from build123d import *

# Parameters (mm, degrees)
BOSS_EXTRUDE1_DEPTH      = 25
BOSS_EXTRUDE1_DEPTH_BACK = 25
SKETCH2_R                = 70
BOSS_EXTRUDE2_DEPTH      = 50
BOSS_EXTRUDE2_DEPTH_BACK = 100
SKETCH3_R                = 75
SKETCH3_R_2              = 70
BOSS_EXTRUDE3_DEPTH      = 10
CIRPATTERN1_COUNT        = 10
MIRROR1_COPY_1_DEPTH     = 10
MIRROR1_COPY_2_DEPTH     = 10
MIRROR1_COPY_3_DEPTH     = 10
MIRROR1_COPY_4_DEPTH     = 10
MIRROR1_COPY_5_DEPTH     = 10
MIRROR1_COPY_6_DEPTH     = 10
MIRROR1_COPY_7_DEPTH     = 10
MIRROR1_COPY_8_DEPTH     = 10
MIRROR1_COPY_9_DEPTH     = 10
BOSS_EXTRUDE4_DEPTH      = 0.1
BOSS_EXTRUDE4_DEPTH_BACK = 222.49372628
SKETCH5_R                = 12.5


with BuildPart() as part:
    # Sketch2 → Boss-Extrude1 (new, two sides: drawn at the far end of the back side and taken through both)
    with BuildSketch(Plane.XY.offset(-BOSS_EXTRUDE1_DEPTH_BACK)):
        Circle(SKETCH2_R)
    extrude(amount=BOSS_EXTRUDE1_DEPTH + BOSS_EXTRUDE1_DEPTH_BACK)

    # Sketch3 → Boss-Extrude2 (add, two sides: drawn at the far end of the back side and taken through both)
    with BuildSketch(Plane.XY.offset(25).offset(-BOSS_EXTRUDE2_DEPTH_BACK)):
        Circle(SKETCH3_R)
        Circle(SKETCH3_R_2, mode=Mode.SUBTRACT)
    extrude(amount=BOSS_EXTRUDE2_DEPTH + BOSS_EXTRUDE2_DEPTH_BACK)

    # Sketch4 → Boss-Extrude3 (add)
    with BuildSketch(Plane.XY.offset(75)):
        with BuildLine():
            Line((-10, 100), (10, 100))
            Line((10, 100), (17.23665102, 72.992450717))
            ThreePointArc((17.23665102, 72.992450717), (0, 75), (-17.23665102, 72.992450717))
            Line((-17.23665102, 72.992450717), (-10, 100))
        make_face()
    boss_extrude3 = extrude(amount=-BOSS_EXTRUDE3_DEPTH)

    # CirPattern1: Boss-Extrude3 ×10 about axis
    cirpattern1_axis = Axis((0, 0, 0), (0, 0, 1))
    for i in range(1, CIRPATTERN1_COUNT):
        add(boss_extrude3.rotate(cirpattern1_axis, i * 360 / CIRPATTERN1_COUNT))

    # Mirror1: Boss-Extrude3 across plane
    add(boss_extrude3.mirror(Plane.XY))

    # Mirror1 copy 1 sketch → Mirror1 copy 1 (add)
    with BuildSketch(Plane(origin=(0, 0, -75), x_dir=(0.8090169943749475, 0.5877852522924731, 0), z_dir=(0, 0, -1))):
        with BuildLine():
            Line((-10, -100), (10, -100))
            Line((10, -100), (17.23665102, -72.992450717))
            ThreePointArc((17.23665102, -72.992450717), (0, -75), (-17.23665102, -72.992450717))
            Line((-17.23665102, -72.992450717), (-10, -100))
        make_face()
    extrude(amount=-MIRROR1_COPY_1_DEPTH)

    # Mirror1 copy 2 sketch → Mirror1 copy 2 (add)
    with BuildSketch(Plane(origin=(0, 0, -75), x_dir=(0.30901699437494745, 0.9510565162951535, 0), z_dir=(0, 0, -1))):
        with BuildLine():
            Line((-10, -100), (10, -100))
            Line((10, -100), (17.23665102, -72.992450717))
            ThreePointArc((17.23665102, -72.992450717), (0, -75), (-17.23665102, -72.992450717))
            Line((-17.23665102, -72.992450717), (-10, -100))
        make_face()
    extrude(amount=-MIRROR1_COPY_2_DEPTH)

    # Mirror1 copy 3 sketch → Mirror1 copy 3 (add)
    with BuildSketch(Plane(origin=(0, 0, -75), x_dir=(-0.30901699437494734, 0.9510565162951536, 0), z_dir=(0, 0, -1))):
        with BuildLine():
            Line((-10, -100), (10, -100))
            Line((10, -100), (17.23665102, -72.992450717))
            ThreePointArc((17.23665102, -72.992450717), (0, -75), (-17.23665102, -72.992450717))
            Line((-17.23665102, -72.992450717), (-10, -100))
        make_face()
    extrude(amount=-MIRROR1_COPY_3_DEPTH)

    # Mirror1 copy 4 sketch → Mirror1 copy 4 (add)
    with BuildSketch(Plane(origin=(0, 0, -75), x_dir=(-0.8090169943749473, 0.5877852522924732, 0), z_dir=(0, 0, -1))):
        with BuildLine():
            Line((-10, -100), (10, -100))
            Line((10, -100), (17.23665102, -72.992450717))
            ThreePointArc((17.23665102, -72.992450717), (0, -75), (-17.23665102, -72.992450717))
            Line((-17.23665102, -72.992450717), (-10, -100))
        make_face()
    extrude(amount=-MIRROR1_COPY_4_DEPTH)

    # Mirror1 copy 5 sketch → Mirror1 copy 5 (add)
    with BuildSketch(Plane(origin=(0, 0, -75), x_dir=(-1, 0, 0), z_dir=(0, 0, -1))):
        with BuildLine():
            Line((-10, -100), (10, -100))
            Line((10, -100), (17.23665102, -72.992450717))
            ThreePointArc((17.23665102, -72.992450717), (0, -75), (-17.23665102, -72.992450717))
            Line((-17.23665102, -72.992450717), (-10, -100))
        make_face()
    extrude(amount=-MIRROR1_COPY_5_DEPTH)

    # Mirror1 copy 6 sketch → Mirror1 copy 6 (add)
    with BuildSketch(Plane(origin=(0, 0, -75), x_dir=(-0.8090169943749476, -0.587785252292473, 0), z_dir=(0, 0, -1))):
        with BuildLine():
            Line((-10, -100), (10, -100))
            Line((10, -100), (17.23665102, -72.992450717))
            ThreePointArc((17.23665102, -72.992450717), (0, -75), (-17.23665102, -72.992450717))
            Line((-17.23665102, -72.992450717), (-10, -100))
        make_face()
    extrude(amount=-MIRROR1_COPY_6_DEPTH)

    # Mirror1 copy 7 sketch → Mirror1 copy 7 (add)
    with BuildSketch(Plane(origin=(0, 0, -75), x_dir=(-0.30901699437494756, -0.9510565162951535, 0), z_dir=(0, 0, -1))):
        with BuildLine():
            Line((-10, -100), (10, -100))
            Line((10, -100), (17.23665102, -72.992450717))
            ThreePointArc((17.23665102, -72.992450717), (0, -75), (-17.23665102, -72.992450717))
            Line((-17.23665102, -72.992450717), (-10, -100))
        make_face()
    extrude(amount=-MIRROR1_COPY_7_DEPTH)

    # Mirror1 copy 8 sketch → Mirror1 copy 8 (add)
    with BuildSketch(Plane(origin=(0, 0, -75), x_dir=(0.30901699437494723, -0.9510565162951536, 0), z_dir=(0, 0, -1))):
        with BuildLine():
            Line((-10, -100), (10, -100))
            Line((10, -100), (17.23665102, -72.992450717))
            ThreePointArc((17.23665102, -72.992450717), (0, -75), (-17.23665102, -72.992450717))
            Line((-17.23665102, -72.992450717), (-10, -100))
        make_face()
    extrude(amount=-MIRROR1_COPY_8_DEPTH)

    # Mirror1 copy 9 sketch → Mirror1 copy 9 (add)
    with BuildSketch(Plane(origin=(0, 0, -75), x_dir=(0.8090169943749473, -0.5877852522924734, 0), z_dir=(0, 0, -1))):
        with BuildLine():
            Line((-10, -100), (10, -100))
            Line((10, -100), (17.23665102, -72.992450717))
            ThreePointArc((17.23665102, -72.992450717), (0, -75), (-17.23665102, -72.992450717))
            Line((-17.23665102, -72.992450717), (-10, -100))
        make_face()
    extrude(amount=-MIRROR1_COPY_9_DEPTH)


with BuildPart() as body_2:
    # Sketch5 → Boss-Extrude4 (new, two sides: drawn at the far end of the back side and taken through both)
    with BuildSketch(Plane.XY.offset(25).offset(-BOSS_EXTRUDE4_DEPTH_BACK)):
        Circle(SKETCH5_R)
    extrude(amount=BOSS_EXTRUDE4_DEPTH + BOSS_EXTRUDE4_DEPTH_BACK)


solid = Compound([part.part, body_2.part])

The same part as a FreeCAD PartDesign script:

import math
import FreeCAD as App
import Part
import Sketcher
from FreeCAD import Vector
Q = App.Units.Quantity

doc = App.newDocument("Part")
body = doc.addObject("PartDesign::Body", "Body")

# Sketch on XY plane
sketch1 = doc.addObject("Sketcher::SketchObject", "Sketch")
body.addObject(sketch1)
sketch1.AttachmentSupport = (doc.XY_Plane, [""])
sketch1.MapMode = "FlatFace"
sketch1.addGeometry(Part.Circle(Vector(0, 0, 0), Vector(0, 0, 1), 70), False)
sketch1.addConstraint([
    Sketcher.Constraint("Coincident", 0, 3, -1, 1),
    Sketcher.Constraint("Diameter", 0, 140.0),
])
pad1 = doc.addObject("PartDesign::Pad", "Pad")
body.addObject(pad1)
pad1.Profile = sketch1
pad1.Type = "TwoLengths"
pad1.Length = 25
pad1.Length2 = 25

# Sketch on XY plane
sketch2 = doc.addObject("Sketcher::SketchObject", "Sketch001")
body.addObject(sketch2)
sketch2.AttachmentSupport = (doc.XY_Plane, [""])
sketch2.MapMode = "FlatFace"
sketch2.AttachmentOffset = App.Placement(Vector(0, 0, 25), App.Rotation())
sketch2.addGeometry([
    Part.Circle(Vector(0, 0, 0), Vector(0, 0, 1), 75),
    Part.Circle(Vector(0, 0, 0), Vector(0, 0, 1), 70),
], False)
sketch2.addConstraint([
    Sketcher.Constraint("Coincident", 0, 3, -1, 1),
    Sketcher.Constraint("Coincident", 1, 3, -1, 1),
    Sketcher.Constraint("Diameter", 0, 150.0),
    Sketcher.Constraint("Diameter", 1, 140.0),
])
pad2 = doc.addObject("PartDesign::Pad", "Pad001")
body.addObject(pad2)
pad2.Profile = sketch2
pad2.Type = "TwoLengths"
pad2.Length = 50
pad2.Length2 = 100

# Sketch on XY plane
sketch3 = doc.addObject("Sketcher::SketchObject", "Sketch002")
body.addObject(sketch3)
sketch3.AttachmentSupport = (doc.XY_Plane, [""])
sketch3.MapMode = "FlatFace"
sketch3.AttachmentOffset = App.Placement(Vector(0, 0, 75), App.Rotation())
sketch3.addGeometry([
    Part.LineSegment(Vector(10, 100, 0), Vector(-10, 100, 0)),
    Part.LineSegment(Vector(-10, 100, 0), Vector(-17, 73, 0)),
    Part.ArcOfCircle(Part.Circle(Vector(0, 0, 0), Vector(0, 0, 1), 75), math.radians(77), math.radians(103)),
    Part.LineSegment(Vector(17, 73, 0), Vector(10, 100, 0)),
], False)
sketch3.addConstraint([
    Sketcher.Constraint("Coincident", 0, 2, 1, 1),
    Sketcher.Constraint("Coincident", 1, 2, 2, 2),
    Sketcher.Constraint("Coincident", 2, 1, 3, 1),
    Sketcher.Constraint("Coincident", 3, 2, 0, 1),
    Sketcher.Constraint("Horizontal", 0),
    Sketcher.Constraint("Coincident", 2, 3, -1, 1),
    Sketcher.Constraint("Horizontal", 1, 2, 2, 1),
    Sketcher.Constraint("Equal", 1, 3),
    Sketcher.Constraint("Radius", 2, 75.0),
    Sketcher.Constraint("DistanceX", 0, 2, 0, 1, 20.0),
    Sketcher.Constraint("Angle", 1, Q("-105 deg")),
    Sketcher.Constraint("DistanceY", -1, 1, 0, 2, 100.0),
])
pad3 = doc.addObject("PartDesign::Pad", "Pad002")
body.addObject(pad3)
pad3.Profile = sketch3
pad3.Length = 10
pad3.Reversed = True
doc.recompute()

polarpattern = doc.addObject("PartDesign::PolarPattern", "PolarPattern")
body.addObject(polarpattern)
polarpattern.Originals = [pad3]
polarpattern.Axis = (doc.Z_Axis, [""])
polarpattern.Angle = 360
polarpattern.Occurrences = 10
body.Tip = polarpattern
doc.recompute()

mirrored = doc.addObject("PartDesign::Mirrored", "Mirrored")
body.addObject(mirrored)
mirrored.Originals = [pad3]
mirrored.MirrorPlane = (doc.XY_Plane, [""])
body.Tip = mirrored

# Sketch on XY plane
sketch4 = doc.addObject("Sketcher::SketchObject", "Sketch003")
body.addObject(sketch4)
sketch4.AttachmentSupport = (doc.XY_Plane, [""])
sketch4.MapMode = "FlatFace"
sketch4.AttachmentOffset = App.Placement(Vector(0, 0, -75), App.Rotation())
sketch4.addGeometry([
    Part.LineSegment(Vector(-67, 75, 0), Vector(-51, 87, 0)),
    Part.LineSegment(Vector(-51, 87, 0), Vector(-29, 69, 0)),
    Part.ArcOfCircle(Part.Circle(Vector(0, 0, 0), Vector(0, 0, 1), 75), math.radians(113), math.radians(139)),
    Part.LineSegment(Vector(-57, 49, 0), Vector(-67, 75, 0)),
], False)
sketch4.addConstraint([
    Sketcher.Constraint("Coincident", 0, 2, 1, 1),
    Sketcher.Constraint("Coincident", 1, 2, 2, 1),
    Sketcher.Constraint("Coincident", 2, 2, 3, 1),
    Sketcher.Constraint("Coincident", 3, 2, 0, 1),
    Sketcher.Constraint("Coincident", 2, 3, -1, 1),
    Sketcher.Constraint("Equal", 1, 3),
    Sketcher.Constraint("Radius", 2, 75.0),
    Sketcher.Constraint("Angle", 0, Q("36 deg")),
    Sketcher.Constraint("Angle", 1, Q("-39 deg")),
    Sketcher.Constraint("Angle", 3, Q("111 deg")),
    Sketcher.Constraint("Distance", 0, 20.0),
    Sketcher.Constraint("DistanceY", 2, 2, 1, 2, 20.262899),
])
pad4 = doc.addObject("PartDesign::Pad", "Pad003")
body.addObject(pad4)
pad4.Profile = sketch4
pad4.Length = 10

# Sketch on XY plane
sketch5 = doc.addObject("Sketcher::SketchObject", "Sketch004")
body.addObject(sketch5)
sketch5.AttachmentSupport = (doc.XY_Plane, [""])
sketch5.MapMode = "FlatFace"
sketch5.AttachmentOffset = App.Placement(Vector(0, 0, -75), App.Rotation())
sketch5.addGeometry([
    Part.LineSegment(Vector(-98, 21, 0), Vector(-92, 40, 0)),
    Part.LineSegment(Vector(-92, 40, 0), Vector(-64, 39, 0)),
    Part.ArcOfCircle(Part.Circle(Vector(0, 0, 0), Vector(0, 0, 1), 75), math.radians(149), math.radians(175)),
    Part.LineSegment(Vector(-75, 6, 0), Vector(-98, 21, 0)),
], False)
sketch5.addConstraint([
    Sketcher.Constraint("Coincident", 0, 2, 1, 1),
    Sketcher.Constraint("Coincident", 1, 2, 2, 1),
    Sketcher.Constraint("Coincident", 2, 2, 3, 1),
    Sketcher.Constraint("Coincident", 3, 2, 0, 1),
    Sketcher.Constraint("Coincident", 2, 3, -1, 1),
    Sketcher.Constraint("Equal", 1, 3),
    Sketcher.Constraint("Radius", 2, 75.0),
    Sketcher.Constraint("Angle", 0, Q("72 deg")),
    Sketcher.Constraint("Angle", 1, Q("-3 deg")),
    Sketcher.Constraint("Angle", 3, Q("147 deg")),
    Sketcher.Constraint("Distance", 0, 20.0),
    Sketcher.Constraint("DistanceX", 0, 2, -1, 1, 92.015482),
])
pad5 = doc.addObject("PartDesign::Pad", "Pad004")
body.addObject(pad5)
pad5.Profile = sketch5
pad5.Length = 10

# Sketch on XY plane
sketch6 = doc.addObject("Sketcher::SketchObject", "Sketch005")
body.addObject(sketch6)
sketch6.AttachmentSupport = (doc.XY_Plane, [""])
sketch6.MapMode = "FlatFace"
sketch6.AttachmentOffset = App.Placement(Vector(0, 0, -75), App.Rotation())
sketch6.addGeometry([
    Part.LineSegment(Vector(-92, -40, 0), Vector(-98, -21, 0)),
    Part.LineSegment(Vector(-98, -21, 0), Vector(-75, -6, 0)),
    Part.ArcOfCircle(Part.Circle(Vector(0, 0, 0), Vector(0, 0, 1), 75), math.radians(-175), math.radians(-149)),
    Part.LineSegment(Vector(-64, -39, 0), Vector(-92, -40, 0)),
], False)
sketch6.addConstraint([
    Sketcher.Constraint("Coincident", 0, 2, 1, 1),
    Sketcher.Constraint("Coincident", 1, 2, 2, 1),
    Sketcher.Constraint("Coincident", 2, 2, 3, 1),
    Sketcher.Constraint("Coincident", 3, 2, 0, 1),
    Sketcher.Constraint("Coincident", 2, 3, -1, 1),
    Sketcher.Constraint("Equal", 1, 3),
    Sketcher.Constraint("Radius", 2, 75.0),
    Sketcher.Constraint("Angle", 0, Q("108 deg")),
    Sketcher.Constraint("Angle", 1, Q("33 deg")),
    Sketcher.Constraint("Angle", 3, Q("-177 deg")),
    Sketcher.Constraint("Distance", 0, 20.0),
    Sketcher.Constraint("DistanceX", 0, 2, -1, 1, 98.195822),
])
pad6 = doc.addObject("PartDesign::Pad", "Pad005")
body.addObject(pad6)
pad6.Profile = sketch6
pad6.Length = 10

# Sketch on XY plane
sketch7 = doc.addObject("Sketcher::SketchObject", "Sketch006")
body.addObject(sketch7)
sketch7.AttachmentSupport = (doc.XY_Plane, [""])
sketch7.MapMode = "FlatFace"
sketch7.AttachmentOffset = App.Placement(Vector(0, 0, -75), App.Rotation())
sketch7.addGeometry([
    Part.LineSegment(Vector(-51, -87, 0), Vector(-67, -75, 0)),
    Part.LineSegment(Vector(-67, -75, 0), Vector(-57, -49, 0)),
    Part.ArcOfCircle(Part.Circle(Vector(0, 0, 0), Vector(0, 0, 1), 75), math.radians(-139), math.radians(-113)),
    Part.LineSegment(Vector(-29, -69, 0), Vector(-51, -87, 0)),
], False)
sketch7.addConstraint([
    Sketcher.Constraint("Coincident", 0, 2, 1, 1),
    Sketcher.Constraint("Coincident", 1, 2, 2, 1),
    Sketcher.Constraint("Coincident", 2, 2, 3, 1),
    Sketcher.Constraint("Coincident", 3, 2, 0, 1),
    Sketcher.Constraint("Coincident", 2, 3, -1, 1),
    Sketcher.Constraint("Equal", 1, 3),
    Sketcher.Constraint("Radius", 2, 75.0),
    Sketcher.Constraint("Angle", 0, Q("144 deg")),
    Sketcher.Constraint("Angle", 1, Q("69 deg")),
    Sketcher.Constraint("Angle", 3, Q("-141 deg")),
    Sketcher.Constraint("Distance", 0, 20.0),
    Sketcher.Constraint("DistanceY", 2, 2, 1, 2, 20.262899),
])
pad7 = doc.addObject("PartDesign::Pad", "Pad006")
body.addObject(pad7)
pad7.Profile = sketch7
pad7.Length = 10

# Sketch on XY plane
sketch8 = doc.addObject("Sketcher::SketchObject", "Sketch007")
body.addObject(sketch8)
sketch8.AttachmentSupport = (doc.XY_Plane, [""])
sketch8.MapMode = "FlatFace"
sketch8.AttachmentOffset = App.Placement(Vector(0, 0, -75), App.Rotation())
sketch8.addGeometry([
    Part.LineSegment(Vector(10, -100, 0), Vector(-10, -100, 0)),
    Part.LineSegment(Vector(-10, -100, 0), Vector(-17, -73, 0)),
    Part.ArcOfCircle(Part.Circle(Vector(0, 0, 0), Vector(0, 0, 1), 75), math.radians(-103), math.radians(-77)),
    Part.LineSegment(Vector(17, -73, 0), Vector(10, -100, 0)),
], False)
sketch8.addConstraint([
    Sketcher.Constraint("Coincident", 0, 2, 1, 1),
    Sketcher.Constraint("Coincident", 1, 2, 2, 1),
    Sketcher.Constraint("Coincident", 2, 2, 3, 1),
    Sketcher.Constraint("Coincident", 3, 2, 0, 1),
    Sketcher.Constraint("Horizontal", 0),
    Sketcher.Constraint("Coincident", 2, 3, -1, 1),
    Sketcher.Constraint("Horizontal", 1, 2, 2, 2),
    Sketcher.Constraint("Equal", 1, 3),
    Sketcher.Constraint("Radius", 2, 75.0),
    Sketcher.Constraint("DistanceX", 0, 2, 0, 1, 20.0),
    Sketcher.Constraint("Angle", 1, Q("105 deg")),
    Sketcher.Constraint("DistanceY", 0, 2, -1, 1, 100.0),
])
pad8 = doc.addObject("PartDesign::Pad", "Pad007")
body.addObject(pad8)
pad8.Profile = sketch8
pad8.Length = 10

# Sketch on XY plane
sketch9 = doc.addObject("Sketcher::SketchObject", "Sketch008")
body.addObject(sketch9)
sketch9.AttachmentSupport = (doc.XY_Plane, [""])
sketch9.MapMode = "FlatFace"
sketch9.AttachmentOffset = App.Placement(Vector(0, 0, -75), App.Rotation())
sketch9.addGeometry([
    Part.LineSegment(Vector(67, -75, 0), Vector(51, -87, 0)),
    Part.LineSegment(Vector(51, -87, 0), Vector(29, -69, 0)),
    Part.ArcOfCircle(Part.Circle(Vector(0, 0, 0), Vector(0, 0, 1), 75), math.radians(-67), math.radians(-41)),
    Part.LineSegment(Vector(57, -49, 0), Vector(67, -75, 0)),
], False)
sketch9.addConstraint([
    Sketcher.Constraint("Coincident", 0, 2, 1, 1),
    Sketcher.Constraint("Coincident", 1, 2, 2, 1),
    Sketcher.Constraint("Coincident", 2, 2, 3, 1),
    Sketcher.Constraint("Coincident", 3, 2, 0, 1),
    Sketcher.Constraint("Coincident", 2, 3, -1, 1),
    Sketcher.Constraint("Equal", 1, 3),
    Sketcher.Constraint("Radius", 2, 75.0),
    Sketcher.Constraint("Angle", 0, Q("-144 deg")),
    Sketcher.Constraint("Angle", 1, Q("141 deg")),
    Sketcher.Constraint("Angle", 3, Q("-69 deg")),
    Sketcher.Constraint("Distance", 0, 20.0),
    Sketcher.Constraint("DistanceY", 1, 2, 2, 2, 20.262899),
])
pad9 = doc.addObject("PartDesign::Pad", "Pad008")
body.addObject(pad9)
pad9.Profile = sketch9
pad9.Length = 10

# Sketch on XY plane
sketch10 = doc.addObject("Sketcher::SketchObject", "Sketch009")
body.addObject(sketch10)
sketch10.AttachmentSupport = (doc.XY_Plane, [""])
sketch10.MapMode = "FlatFace"
sketch10.AttachmentOffset = App.Placement(Vector(0, 0, -75), App.Rotation())
sketch10.addGeometry([
    Part.LineSegment(Vector(98, -21, 0), Vector(92, -40, 0)),
    Part.LineSegment(Vector(92, -40, 0), Vector(64, -39, 0)),
    Part.ArcOfCircle(Part.Circle(Vector(0, 0, 0), Vector(0, 0, 1), 75), math.radians(-31), math.radians(-5)),
    Part.LineSegment(Vector(75, -6, 0), Vector(98, -21, 0)),
], False)
sketch10.addConstraint([
    Sketcher.Constraint("Coincident", 0, 2, 1, 1),
    Sketcher.Constraint("Coincident", 1, 2, 2, 1),
    Sketcher.Constraint("Coincident", 2, 2, 3, 1),
    Sketcher.Constraint("Coincident", 3, 2, 0, 1),
    Sketcher.Constraint("Coincident", 2, 3, -1, 1),
    Sketcher.Constraint("Equal", 1, 3),
    Sketcher.Constraint("Radius", 2, 75.0),
    Sketcher.Constraint("Angle", 0, Q("-108 deg")),
    Sketcher.Constraint("Angle", 1, Q("177 deg")),
    Sketcher.Constraint("Angle", 3, Q("-33 deg")),
    Sketcher.Constraint("Distance", 0, 20.0),
    Sketcher.Constraint("DistanceX", -1, 1, 0, 2, 92.015482),
])
pad10 = doc.addObject("PartDesign::Pad", "Pad009")
body.addObject(pad10)
pad10.Profile = sketch10
pad10.Length = 10

# Sketch on XY plane
sketch11 = doc.addObject("Sketcher::SketchObject", "Sketch010")
body.addObject(sketch11)
sketch11.AttachmentSupport = (doc.XY_Plane, [""])
sketch11.MapMode = "FlatFace"
sketch11.AttachmentOffset = App.Placement(Vector(0, 0, -75), App.Rotation())
sketch11.addGeometry([
    Part.LineSegment(Vector(92, 40, 0), Vector(98, 21, 0)),
    Part.LineSegment(Vector(98, 21, 0), Vector(75, 6, 0)),
    Part.ArcOfCircle(Part.Circle(Vector(0, 0, 0), Vector(0, 0, 1), 75), math.radians(5), math.radians(31)),
    Part.LineSegment(Vector(64, 39, 0), Vector(92, 40, 0)),
], False)
sketch11.addConstraint([
    Sketcher.Constraint("Coincident", 0, 2, 1, 1),
    Sketcher.Constraint("Coincident", 1, 2, 2, 1),
    Sketcher.Constraint("Coincident", 2, 2, 3, 1),
    Sketcher.Constraint("Coincident", 3, 2, 0, 1),
    Sketcher.Constraint("Coincident", 2, 3, -1, 1),
    Sketcher.Constraint("Equal", 1, 3),
    Sketcher.Constraint("Radius", 2, 75.0),
    Sketcher.Constraint("Angle", 0, Q("-72 deg")),
    Sketcher.Constraint("Angle", 1, Q("-147 deg")),
    Sketcher.Constraint("Angle", 3, Q("3 deg")),
    Sketcher.Constraint("Distance", 0, 20.0),
    Sketcher.Constraint("DistanceX", -1, 1, 0, 2, 98.195822),
])
pad11 = doc.addObject("PartDesign::Pad", "Pad010")
body.addObject(pad11)
pad11.Profile = sketch11
pad11.Length = 10

# Sketch on XY plane
sketch12 = doc.addObject("Sketcher::SketchObject", "Sketch011")
body.addObject(sketch12)
sketch12.AttachmentSupport = (doc.XY_Plane, [""])
sketch12.MapMode = "FlatFace"
sketch12.AttachmentOffset = App.Placement(Vector(0, 0, -75), App.Rotation())
sketch12.addGeometry([
    Part.LineSegment(Vector(51, 87, 0), Vector(67, 75, 0)),
    Part.LineSegment(Vector(67, 75, 0), Vector(57, 49, 0)),
    Part.ArcOfCircle(Part.Circle(Vector(0, 0, 0), Vector(0, 0, 1), 75), math.radians(41), math.radians(67)),
    Part.LineSegment(Vector(29, 69, 0), Vector(51, 87, 0)),
], False)
sketch12.addConstraint([
    Sketcher.Constraint("Coincident", 0, 2, 1, 1),
    Sketcher.Constraint("Coincident", 1, 2, 2, 1),
    Sketcher.Constraint("Coincident", 2, 2, 3, 1),
    Sketcher.Constraint("Coincident", 3, 2, 0, 1),
    Sketcher.Constraint("Coincident", 2, 3, -1, 1),
    Sketcher.Constraint("Equal", 1, 3),
    Sketcher.Constraint("Radius", 2, 75.0),
    Sketcher.Constraint("Angle", 0, Q("-36 deg")),
    Sketcher.Constraint("Angle", 1, Q("-111 deg")),
    Sketcher.Constraint("Angle", 3, Q("39 deg")),
    Sketcher.Constraint("Distance", 0, 20.0),
    Sketcher.Constraint("DistanceY", 1, 2, 2, 2, 20.262899),
])
pad12 = doc.addObject("PartDesign::Pad", "Pad011")
body.addObject(pad12)
pad12.Profile = sketch12
pad12.Length = 10
body2 = doc.addObject("PartDesign::Body", "Body001")

# Sketch on XY plane
sketch13 = doc.addObject("Sketcher::SketchObject", "Sketch012")
body2.addObject(sketch13)
sketch13.AttachmentSupport = (doc.getObject("XY_Plane001"), [""])
sketch13.MapMode = "FlatFace"
sketch13.AttachmentOffset = App.Placement(Vector(0, 0, 25), App.Rotation())
sketch13.addGeometry(Part.Circle(Vector(0, 0, 0), Vector(0, 0, 1), 12), False)
sketch13.addConstraint([
    Sketcher.Constraint("Coincident", 0, 3, -1, 1),
    Sketcher.Constraint("Diameter", 0, 25.0),
])
pad13 = doc.addObject("PartDesign::Pad", "Pad012")
body2.addObject(pad13)
pad13.Profile = sketch13
pad13.Type = "TwoLengths"
pad13.Length = 0.1
pad13.Length2 = 222.493726

doc.recompute()
